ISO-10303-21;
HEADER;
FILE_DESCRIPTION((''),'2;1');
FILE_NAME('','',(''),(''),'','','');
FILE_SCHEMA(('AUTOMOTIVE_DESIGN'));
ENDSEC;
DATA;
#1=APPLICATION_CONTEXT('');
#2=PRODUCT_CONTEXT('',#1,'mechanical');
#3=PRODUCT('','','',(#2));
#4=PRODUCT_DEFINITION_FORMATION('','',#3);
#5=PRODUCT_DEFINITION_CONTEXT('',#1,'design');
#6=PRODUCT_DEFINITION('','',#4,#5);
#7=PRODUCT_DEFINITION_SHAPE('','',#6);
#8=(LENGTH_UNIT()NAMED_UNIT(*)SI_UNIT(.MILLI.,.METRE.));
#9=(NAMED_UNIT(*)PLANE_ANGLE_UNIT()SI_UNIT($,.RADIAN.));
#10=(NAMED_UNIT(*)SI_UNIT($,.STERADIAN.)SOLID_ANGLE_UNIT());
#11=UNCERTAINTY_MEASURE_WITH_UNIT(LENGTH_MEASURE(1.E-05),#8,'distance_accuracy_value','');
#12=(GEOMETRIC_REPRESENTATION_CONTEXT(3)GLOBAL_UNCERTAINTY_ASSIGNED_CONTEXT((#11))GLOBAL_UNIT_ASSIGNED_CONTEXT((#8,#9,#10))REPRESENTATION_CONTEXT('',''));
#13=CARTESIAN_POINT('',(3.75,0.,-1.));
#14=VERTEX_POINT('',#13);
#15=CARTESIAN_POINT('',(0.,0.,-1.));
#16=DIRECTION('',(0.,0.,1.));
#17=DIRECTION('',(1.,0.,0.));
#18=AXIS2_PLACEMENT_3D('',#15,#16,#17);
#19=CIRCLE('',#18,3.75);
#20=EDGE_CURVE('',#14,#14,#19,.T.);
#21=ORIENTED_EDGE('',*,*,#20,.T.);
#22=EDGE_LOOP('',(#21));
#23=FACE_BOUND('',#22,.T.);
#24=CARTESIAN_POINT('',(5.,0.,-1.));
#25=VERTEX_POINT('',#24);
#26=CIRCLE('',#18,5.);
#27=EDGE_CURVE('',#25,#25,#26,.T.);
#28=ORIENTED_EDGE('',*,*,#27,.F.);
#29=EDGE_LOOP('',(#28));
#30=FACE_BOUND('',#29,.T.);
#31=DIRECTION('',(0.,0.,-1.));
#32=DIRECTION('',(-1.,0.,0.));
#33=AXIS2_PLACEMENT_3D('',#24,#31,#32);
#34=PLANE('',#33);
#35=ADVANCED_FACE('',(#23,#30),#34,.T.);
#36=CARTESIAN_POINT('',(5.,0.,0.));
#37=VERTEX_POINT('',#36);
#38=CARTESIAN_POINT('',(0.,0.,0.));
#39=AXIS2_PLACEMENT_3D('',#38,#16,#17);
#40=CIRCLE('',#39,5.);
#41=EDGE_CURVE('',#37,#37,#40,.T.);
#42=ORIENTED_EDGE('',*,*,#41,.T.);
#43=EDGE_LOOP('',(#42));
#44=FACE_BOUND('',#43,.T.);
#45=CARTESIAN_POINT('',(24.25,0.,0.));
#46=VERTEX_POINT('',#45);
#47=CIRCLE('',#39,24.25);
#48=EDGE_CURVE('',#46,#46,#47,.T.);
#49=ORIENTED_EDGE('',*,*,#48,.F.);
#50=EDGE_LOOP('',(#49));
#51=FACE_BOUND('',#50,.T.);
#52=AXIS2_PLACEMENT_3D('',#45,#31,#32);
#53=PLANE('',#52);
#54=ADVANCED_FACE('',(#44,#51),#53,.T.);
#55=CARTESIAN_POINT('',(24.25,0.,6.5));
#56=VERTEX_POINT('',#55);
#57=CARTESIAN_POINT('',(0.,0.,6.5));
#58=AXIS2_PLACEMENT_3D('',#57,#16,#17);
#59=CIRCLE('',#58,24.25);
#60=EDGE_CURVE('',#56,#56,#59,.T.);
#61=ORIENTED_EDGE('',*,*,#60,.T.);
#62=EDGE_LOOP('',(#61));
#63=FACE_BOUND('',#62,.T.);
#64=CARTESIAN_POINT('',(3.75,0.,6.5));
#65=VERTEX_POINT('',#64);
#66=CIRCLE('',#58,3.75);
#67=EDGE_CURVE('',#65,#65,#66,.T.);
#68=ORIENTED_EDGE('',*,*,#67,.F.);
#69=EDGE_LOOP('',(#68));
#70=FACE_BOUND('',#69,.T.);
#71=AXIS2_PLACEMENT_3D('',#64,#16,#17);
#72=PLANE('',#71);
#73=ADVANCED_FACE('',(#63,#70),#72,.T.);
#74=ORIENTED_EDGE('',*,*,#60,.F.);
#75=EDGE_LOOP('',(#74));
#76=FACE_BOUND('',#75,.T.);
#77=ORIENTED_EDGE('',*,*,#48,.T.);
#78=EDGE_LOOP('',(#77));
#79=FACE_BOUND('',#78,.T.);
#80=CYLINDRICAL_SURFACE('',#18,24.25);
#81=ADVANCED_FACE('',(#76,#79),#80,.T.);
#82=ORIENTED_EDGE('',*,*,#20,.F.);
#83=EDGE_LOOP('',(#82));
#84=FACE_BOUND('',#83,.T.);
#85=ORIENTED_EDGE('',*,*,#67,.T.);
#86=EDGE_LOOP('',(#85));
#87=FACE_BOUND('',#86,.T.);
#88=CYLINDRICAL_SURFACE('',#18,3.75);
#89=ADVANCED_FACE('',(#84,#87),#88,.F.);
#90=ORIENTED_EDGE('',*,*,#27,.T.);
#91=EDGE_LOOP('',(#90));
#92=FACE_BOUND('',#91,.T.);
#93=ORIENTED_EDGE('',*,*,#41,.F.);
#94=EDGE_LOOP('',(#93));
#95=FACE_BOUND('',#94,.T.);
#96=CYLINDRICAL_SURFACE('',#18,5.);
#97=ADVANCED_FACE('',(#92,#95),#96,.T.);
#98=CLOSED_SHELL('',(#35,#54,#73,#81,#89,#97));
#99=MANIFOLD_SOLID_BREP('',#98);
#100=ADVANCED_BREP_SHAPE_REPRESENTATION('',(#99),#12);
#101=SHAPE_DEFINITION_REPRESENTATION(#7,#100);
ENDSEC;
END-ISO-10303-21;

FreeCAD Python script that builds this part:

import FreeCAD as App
import Part
import Sketcher
Q = App.Units.Quantity


def add_polygon(sketch, points):
    """Adds a closed chain of lines whose ends are joined by coincident constraints."""
    first, n = sketch.GeometryCount, len(points)
    for a, b in zip(points, points[1:] + points[:1]):
        sketch.addGeometry(Part.LineSegment(App.Vector(*a, 0), App.Vector(*b, 0)), False)
    for i in range(n):
        sketch.addConstraint(Sketcher.Constraint("Coincident", first + i, 2, first + (i + 1) % n, 1))

doc = App.newDocument("Part")
params = doc.addObject("Spreadsheet::Sheet", "Params")
for row, (alias, value) in enumerate([
    ("sketch1_height", "1 mm"),
    ("sketch1_width", "20.5 mm"),
    ("sketch1_height2", "7.5 mm"),
    ("sketch1_width2", "1.25 mm"),
    ("revolution_angle", "360 deg"),
], start=1):
    params.set(f"A{row}", alias)
    params.set(f"B{row}", "=" + value)
    params.setAlias(f"B{row}", alias)

body = doc.addObject("PartDesign::Body", "Body")

# Sketch on XZ plane
sketch1 = body.newObject("Sketcher::SketchObject", "Sketch")
sketch1.AttachmentSupport = (doc.getObject("XZ_Plane"), [""])
sketch1.MapMode = "FlatFace"
add_polygon(sketch1, [(5, 0), (5, -1), (3.75, -1), (3.75, 6.5), (24.25, 6.5), (24.25, 0)])  # lines 0-5
sketch1.addConstraint(Sketcher.Constraint("Vertical", 0))
sketch1.addConstraint(Sketcher.Constraint("Horizontal", 1))
sketch1.addConstraint(Sketcher.Constraint("Vertical", 2))
sketch1.addConstraint(Sketcher.Constraint("Horizontal", 3))
sketch1.addConstraint(Sketcher.Constraint("Vertical", 4))
sketch1.addConstraint(Sketcher.Constraint("Horizontal", 5))
sketch1.addConstraint(Sketcher.Constraint("PointOnObject", 4, 2, -1))
sketch1.addConstraint(Sketcher.Constraint("DistanceY", 0, 2, 0, 1, Q("1 mm")))
sketch1.addConstraint(Sketcher.Constraint("DistanceX", 3, 1, 3, 2, Q("20.5 mm")))
sketch1.addConstraint(Sketcher.Constraint("DistanceY", 2, 1, 2, 2, Q("7.5 mm")))
sketch1.addConstraint(Sketcher.Constraint("DistanceX", -1, 1, 0, 2, Q("5 mm")))
sketch1.addConstraint(Sketcher.Constraint("DistanceX", 1, 2, 1, 1, Q("1.25 mm")))
sketch1.setExpression("Constraints[13]", "Params.sketch1_height")
sketch1.setExpression("Constraints[14]", "Params.sketch1_width")
sketch1.setExpression("Constraints[15]", "Params.sketch1_height2")
sketch1.setExpression("Constraints[17]", "Params.sketch1_width2")
revolution = body.newObject("PartDesign::Revolution", "Revolution")
revolution.Profile = sketch1
revolution.ReferenceAxis = (sketch1, ["V_Axis"])
revolution.setExpression("Angle", "Params.revolution_angle")

doc.recompute()
